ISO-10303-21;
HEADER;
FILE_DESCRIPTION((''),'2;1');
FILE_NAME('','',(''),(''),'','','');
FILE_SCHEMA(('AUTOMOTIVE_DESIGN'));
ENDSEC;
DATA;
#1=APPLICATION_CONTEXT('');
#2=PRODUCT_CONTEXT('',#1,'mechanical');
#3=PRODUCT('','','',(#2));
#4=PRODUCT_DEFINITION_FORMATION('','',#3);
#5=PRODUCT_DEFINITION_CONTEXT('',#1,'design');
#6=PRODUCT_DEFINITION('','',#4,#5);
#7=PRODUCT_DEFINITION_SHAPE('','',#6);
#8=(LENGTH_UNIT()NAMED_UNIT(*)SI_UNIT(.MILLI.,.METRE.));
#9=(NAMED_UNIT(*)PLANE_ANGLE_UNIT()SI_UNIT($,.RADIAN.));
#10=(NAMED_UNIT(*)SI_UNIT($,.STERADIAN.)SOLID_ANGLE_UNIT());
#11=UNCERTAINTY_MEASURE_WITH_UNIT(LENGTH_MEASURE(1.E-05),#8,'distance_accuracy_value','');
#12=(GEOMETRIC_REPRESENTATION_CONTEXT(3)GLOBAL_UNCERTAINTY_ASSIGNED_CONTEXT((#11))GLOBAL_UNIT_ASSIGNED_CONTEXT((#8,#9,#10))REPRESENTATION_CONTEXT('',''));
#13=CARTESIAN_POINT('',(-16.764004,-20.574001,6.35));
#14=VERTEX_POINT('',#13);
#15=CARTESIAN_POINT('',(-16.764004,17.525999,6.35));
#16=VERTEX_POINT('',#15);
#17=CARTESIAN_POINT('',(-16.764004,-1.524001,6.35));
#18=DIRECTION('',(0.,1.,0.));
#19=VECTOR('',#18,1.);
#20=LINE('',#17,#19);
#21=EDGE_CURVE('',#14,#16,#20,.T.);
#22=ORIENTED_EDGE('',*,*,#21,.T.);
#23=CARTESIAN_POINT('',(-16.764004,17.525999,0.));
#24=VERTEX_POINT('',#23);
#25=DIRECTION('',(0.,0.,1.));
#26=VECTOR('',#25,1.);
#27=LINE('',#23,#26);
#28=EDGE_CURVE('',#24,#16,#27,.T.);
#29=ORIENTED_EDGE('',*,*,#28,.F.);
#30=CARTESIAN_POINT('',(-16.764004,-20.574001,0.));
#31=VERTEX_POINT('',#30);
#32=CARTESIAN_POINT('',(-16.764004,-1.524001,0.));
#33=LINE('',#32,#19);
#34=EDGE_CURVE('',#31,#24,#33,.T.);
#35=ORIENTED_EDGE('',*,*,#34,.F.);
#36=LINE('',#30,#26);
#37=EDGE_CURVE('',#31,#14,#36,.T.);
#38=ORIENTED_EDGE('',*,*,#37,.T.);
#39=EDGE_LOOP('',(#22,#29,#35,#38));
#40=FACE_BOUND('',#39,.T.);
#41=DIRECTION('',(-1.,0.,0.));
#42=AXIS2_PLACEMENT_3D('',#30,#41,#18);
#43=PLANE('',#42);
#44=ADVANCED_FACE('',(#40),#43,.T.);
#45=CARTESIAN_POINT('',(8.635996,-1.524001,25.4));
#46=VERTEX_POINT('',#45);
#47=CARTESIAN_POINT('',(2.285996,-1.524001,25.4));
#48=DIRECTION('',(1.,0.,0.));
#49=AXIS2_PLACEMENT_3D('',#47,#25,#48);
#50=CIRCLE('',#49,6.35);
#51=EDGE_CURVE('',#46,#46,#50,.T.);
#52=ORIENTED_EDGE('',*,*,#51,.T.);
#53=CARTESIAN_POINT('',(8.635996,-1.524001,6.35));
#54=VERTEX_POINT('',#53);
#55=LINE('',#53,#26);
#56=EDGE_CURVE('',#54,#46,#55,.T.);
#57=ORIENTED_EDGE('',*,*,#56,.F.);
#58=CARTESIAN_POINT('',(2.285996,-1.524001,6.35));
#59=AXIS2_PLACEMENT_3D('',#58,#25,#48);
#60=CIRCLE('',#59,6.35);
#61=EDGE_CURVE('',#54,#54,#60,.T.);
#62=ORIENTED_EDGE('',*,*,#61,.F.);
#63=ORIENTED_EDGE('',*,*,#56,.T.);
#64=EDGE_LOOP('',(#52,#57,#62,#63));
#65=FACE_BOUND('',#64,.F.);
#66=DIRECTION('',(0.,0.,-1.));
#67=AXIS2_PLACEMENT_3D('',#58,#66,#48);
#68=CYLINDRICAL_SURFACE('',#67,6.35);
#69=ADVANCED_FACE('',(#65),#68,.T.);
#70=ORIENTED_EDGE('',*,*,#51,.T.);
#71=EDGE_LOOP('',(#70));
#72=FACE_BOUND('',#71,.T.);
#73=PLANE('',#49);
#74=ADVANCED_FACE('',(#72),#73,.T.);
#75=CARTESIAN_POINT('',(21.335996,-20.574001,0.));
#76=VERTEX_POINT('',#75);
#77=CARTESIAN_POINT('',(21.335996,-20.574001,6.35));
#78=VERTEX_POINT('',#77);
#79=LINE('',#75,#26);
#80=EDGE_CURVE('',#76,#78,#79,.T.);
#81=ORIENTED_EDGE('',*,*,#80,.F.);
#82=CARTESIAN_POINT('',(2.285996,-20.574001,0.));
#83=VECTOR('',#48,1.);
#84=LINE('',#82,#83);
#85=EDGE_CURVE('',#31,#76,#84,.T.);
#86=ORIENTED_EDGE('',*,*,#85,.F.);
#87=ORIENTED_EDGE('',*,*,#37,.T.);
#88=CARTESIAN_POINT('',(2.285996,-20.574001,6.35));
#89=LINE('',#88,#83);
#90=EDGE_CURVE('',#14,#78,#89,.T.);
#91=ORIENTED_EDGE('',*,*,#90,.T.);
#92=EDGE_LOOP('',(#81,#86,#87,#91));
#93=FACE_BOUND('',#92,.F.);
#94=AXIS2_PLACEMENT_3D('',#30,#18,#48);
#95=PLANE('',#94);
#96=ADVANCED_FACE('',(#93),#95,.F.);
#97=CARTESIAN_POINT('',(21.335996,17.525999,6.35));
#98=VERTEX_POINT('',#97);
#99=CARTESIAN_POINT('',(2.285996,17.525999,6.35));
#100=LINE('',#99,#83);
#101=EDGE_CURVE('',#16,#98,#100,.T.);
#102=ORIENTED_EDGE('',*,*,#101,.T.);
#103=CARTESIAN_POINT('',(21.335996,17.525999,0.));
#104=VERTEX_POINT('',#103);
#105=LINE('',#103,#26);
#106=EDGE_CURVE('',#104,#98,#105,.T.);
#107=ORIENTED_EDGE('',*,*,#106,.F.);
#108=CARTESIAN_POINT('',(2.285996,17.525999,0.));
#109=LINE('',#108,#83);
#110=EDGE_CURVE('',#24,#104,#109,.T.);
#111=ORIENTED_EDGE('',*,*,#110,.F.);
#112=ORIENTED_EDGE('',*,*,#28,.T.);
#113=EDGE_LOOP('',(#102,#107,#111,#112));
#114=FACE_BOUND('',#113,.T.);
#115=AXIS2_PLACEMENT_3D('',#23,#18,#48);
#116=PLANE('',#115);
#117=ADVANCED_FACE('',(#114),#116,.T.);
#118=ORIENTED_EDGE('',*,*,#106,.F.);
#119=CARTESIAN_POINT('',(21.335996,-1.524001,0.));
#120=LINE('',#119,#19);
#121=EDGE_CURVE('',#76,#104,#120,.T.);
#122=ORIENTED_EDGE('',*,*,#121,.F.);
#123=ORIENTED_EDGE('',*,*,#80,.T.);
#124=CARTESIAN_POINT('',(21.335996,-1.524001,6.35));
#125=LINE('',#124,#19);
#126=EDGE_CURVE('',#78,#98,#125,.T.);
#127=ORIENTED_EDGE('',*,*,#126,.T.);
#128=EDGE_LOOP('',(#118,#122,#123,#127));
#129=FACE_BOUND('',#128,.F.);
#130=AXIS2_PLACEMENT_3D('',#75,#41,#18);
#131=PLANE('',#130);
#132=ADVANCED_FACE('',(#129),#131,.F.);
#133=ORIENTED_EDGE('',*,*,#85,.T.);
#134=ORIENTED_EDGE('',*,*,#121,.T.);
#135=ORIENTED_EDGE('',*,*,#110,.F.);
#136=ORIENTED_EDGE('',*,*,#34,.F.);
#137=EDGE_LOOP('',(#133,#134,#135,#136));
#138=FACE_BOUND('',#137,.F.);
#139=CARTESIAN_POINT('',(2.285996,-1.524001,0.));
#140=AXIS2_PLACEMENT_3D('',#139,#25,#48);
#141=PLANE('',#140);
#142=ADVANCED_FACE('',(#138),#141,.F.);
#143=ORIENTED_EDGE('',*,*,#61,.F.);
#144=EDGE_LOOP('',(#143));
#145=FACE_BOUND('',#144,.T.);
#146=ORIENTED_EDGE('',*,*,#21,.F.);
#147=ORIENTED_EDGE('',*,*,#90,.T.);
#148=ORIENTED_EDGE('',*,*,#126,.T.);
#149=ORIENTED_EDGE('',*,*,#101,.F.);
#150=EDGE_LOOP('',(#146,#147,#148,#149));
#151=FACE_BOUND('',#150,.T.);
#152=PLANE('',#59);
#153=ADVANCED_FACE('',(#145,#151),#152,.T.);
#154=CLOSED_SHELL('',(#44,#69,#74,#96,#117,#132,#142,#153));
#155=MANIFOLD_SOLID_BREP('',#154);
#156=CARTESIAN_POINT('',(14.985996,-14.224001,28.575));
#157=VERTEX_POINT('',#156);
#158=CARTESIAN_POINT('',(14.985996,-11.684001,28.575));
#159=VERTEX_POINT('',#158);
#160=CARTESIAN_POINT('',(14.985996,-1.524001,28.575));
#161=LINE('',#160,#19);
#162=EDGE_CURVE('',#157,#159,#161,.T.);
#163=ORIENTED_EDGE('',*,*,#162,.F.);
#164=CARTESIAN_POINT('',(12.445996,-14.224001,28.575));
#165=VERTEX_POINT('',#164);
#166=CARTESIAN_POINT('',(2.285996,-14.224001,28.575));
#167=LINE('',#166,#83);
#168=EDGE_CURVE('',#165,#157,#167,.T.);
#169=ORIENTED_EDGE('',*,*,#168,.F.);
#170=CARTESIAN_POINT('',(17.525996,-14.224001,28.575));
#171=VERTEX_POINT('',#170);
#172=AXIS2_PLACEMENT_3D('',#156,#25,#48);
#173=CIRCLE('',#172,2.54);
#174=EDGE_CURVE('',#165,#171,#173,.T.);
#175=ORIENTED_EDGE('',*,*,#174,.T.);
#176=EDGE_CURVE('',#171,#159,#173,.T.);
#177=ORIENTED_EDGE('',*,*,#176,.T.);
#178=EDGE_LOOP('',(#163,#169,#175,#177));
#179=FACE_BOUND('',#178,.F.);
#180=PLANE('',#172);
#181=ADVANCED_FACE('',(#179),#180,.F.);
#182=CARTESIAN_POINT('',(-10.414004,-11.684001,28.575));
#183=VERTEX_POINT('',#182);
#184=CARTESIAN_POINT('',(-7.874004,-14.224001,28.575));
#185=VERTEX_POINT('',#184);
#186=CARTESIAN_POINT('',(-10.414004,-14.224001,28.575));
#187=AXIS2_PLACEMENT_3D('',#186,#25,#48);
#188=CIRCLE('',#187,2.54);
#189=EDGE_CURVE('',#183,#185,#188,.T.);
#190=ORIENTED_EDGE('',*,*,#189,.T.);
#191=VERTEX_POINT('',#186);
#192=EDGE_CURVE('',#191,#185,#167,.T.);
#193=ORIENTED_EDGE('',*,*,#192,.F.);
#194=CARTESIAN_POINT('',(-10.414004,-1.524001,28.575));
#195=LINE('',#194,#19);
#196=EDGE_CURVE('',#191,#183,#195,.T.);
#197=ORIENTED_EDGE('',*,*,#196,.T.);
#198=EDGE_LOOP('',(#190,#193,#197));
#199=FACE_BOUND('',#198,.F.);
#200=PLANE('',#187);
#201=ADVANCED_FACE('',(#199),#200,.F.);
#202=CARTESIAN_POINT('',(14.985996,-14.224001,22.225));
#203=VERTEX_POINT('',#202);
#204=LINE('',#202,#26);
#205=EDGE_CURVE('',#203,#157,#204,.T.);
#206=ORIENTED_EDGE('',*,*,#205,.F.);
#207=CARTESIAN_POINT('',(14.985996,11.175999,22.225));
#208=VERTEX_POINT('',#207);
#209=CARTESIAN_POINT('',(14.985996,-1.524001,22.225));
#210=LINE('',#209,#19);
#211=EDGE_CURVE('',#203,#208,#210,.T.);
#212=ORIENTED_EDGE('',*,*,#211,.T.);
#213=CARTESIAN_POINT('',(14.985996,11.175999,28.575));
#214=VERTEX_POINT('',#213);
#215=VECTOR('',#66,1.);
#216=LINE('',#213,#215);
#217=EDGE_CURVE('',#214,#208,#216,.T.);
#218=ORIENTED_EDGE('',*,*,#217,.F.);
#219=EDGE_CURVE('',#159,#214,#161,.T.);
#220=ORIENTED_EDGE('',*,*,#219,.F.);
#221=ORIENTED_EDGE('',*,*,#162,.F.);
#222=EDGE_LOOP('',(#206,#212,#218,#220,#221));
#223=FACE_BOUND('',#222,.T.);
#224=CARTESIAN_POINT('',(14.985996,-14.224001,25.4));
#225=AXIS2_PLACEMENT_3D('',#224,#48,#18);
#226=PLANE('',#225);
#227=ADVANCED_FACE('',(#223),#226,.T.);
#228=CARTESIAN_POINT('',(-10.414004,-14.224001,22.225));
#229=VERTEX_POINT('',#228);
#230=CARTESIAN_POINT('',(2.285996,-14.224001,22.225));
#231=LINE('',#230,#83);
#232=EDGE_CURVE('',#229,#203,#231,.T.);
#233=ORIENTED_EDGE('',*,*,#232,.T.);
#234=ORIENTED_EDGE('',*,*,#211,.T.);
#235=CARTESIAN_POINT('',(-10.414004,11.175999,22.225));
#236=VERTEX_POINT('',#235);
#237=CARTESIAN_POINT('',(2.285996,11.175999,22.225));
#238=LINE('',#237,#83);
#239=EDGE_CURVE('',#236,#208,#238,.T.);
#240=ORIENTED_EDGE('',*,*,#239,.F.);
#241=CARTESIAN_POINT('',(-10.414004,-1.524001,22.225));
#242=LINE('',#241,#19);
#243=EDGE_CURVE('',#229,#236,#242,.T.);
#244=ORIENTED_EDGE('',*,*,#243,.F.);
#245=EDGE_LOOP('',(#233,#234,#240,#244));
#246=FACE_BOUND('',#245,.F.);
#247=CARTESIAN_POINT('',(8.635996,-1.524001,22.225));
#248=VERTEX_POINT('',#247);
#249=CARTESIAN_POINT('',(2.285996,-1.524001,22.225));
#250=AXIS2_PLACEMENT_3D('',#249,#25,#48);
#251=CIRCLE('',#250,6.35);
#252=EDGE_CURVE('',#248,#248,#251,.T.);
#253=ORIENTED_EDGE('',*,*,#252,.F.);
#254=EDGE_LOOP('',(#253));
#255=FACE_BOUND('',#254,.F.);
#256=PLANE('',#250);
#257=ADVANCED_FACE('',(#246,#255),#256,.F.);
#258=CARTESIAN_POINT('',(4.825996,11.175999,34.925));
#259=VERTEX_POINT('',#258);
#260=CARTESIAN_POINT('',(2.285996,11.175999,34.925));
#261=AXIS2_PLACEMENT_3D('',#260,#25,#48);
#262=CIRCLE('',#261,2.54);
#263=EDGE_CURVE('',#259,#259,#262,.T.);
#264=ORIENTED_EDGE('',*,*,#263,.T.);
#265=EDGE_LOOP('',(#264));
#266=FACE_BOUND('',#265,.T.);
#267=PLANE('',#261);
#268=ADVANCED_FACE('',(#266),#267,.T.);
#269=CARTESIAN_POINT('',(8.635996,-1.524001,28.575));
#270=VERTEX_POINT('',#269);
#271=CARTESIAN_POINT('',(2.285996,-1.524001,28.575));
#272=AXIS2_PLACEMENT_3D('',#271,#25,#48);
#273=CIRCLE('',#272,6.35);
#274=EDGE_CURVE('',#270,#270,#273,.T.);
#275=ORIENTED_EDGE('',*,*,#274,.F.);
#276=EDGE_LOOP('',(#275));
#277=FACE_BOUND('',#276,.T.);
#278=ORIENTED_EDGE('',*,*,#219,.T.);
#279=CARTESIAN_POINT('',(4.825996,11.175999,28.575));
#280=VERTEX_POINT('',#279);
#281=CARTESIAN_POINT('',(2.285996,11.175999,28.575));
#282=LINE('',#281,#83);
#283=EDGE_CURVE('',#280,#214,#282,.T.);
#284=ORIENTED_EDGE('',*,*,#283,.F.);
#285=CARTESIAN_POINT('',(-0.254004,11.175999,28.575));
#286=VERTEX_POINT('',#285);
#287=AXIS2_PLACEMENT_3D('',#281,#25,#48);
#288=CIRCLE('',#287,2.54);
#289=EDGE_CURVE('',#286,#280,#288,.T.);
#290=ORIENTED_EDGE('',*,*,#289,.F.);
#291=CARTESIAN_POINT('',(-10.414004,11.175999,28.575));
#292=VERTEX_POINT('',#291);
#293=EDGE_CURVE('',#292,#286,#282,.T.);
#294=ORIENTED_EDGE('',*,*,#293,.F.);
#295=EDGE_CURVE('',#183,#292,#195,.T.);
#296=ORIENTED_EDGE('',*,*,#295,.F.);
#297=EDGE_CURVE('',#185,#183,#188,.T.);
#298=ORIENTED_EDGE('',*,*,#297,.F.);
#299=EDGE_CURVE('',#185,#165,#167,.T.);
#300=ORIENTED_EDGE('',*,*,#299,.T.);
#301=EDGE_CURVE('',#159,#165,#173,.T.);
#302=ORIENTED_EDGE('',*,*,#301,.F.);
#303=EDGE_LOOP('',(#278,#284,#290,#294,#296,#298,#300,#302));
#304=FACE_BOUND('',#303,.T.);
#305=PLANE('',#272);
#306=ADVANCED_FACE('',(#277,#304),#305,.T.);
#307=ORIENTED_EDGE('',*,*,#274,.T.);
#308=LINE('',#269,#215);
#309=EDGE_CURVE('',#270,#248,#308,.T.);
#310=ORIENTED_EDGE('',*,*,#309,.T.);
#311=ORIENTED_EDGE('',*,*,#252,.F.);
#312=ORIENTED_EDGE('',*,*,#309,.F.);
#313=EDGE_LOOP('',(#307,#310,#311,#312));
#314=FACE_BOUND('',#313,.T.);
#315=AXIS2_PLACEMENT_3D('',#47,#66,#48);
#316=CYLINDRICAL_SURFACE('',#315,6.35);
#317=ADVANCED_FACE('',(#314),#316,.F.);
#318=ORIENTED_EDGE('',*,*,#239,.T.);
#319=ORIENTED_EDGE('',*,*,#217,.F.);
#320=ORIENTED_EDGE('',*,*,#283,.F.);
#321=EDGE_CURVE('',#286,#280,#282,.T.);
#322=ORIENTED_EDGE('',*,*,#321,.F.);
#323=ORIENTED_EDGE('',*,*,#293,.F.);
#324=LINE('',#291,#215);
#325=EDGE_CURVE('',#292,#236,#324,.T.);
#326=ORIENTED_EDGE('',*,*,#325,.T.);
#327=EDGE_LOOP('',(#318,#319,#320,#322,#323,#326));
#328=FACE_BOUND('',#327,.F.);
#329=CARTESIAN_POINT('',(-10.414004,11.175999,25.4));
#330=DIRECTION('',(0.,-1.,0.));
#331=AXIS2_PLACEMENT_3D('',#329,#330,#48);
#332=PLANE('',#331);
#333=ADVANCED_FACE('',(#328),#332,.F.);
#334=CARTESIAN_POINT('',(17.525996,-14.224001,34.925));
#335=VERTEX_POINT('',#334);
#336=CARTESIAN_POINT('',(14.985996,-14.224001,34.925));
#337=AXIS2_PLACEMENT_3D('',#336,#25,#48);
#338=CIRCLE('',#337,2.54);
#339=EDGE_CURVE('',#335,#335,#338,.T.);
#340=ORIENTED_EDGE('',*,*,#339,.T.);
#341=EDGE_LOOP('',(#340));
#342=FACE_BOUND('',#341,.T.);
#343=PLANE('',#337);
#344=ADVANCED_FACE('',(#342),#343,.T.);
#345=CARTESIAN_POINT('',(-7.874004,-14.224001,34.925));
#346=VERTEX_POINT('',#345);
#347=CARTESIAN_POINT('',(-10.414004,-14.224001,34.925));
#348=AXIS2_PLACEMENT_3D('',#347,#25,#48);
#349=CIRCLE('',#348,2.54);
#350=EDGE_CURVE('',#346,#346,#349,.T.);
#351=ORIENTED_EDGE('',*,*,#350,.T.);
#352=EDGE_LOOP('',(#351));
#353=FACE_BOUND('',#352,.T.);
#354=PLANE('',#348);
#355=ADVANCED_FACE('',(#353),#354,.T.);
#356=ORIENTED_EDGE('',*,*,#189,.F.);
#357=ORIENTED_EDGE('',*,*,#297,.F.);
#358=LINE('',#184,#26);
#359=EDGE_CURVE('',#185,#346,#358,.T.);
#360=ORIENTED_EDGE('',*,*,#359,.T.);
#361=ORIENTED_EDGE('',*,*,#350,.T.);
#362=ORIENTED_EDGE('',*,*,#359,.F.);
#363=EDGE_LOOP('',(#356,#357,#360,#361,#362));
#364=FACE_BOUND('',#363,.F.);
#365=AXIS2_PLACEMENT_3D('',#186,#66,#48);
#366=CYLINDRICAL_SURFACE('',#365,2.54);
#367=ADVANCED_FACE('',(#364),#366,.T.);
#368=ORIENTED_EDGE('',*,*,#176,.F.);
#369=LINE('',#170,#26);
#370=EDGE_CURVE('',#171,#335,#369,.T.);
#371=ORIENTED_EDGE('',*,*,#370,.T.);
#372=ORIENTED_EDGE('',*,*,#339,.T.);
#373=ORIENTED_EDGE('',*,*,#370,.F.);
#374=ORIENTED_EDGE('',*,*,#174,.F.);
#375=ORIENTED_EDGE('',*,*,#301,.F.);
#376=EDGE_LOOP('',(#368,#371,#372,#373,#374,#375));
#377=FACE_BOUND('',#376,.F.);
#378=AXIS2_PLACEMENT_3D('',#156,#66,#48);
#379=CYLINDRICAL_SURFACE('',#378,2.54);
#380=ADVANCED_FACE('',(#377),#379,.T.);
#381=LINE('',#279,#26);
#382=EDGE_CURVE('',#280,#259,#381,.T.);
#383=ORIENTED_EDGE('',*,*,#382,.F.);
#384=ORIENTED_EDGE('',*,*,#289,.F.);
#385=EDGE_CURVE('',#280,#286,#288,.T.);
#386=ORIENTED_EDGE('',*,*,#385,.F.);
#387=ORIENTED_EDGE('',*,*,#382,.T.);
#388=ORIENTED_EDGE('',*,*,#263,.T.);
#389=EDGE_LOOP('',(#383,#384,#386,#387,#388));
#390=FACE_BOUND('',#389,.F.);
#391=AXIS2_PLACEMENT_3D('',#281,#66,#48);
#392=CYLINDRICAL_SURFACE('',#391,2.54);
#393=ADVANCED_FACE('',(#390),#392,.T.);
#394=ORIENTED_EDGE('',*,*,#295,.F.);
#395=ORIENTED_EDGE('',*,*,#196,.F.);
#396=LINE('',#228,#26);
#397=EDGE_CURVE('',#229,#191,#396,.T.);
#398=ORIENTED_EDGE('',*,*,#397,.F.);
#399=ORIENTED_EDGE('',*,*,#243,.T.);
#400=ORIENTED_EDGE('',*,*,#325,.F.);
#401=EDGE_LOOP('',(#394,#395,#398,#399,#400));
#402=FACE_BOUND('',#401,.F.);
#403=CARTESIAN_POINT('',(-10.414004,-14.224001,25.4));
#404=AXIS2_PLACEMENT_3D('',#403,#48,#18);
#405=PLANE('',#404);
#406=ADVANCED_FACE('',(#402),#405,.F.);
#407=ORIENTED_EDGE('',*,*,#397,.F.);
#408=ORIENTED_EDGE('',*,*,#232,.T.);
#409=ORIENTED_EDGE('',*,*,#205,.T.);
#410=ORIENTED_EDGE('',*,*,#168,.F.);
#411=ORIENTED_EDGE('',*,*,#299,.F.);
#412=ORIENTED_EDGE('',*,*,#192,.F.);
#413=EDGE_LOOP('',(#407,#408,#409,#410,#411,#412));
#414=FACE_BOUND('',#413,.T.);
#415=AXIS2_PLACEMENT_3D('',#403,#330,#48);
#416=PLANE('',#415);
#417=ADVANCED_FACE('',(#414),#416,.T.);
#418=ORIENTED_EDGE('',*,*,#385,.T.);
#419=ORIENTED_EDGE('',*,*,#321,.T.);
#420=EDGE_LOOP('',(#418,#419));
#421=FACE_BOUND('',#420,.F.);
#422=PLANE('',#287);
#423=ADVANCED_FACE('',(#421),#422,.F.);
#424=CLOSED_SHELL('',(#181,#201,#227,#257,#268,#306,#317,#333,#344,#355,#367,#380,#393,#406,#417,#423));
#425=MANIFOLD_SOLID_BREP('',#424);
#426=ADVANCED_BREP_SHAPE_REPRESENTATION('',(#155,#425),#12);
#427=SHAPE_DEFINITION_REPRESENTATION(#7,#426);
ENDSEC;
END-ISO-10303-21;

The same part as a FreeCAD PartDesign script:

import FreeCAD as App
import Part
import Sketcher

V = App.Vector
Q = App.Units.Quantity

doc = App.newDocument("Part")
params = doc.addObject("Spreadsheet::Sheet", "Params")
for row, (alias, value) in enumerate([
    ("sketch1_width", "1.5 in"),
    ("pad1_length", "0.25 in"),
    ("sketch2_diameter", "0.5 in"),
    ("pad2_length", "0.75 in"),
    ("sketch3_diameter", "0.5 in"),
    ("sketch3_width", "1 in"),
    ("pad3_length", "0.25 in"),
    ("sketch4_diameter", "0.2 in"),
    ("pad4_length", "0.25 in"),
], start=1):
    params.set(f"A{row}", alias)
    params.set(f"B{row}", "=" + value)
    params.setAlias(f"B{row}", alias)

body = doc.addObject("PartDesign::Body", "Body")

# Sketch on XY plane
sketch1 = body.newObject("Sketcher::SketchObject", "Sketch")
sketch1.AttachmentSupport = (doc.getObject("XY_Plane"), [""])
sketch1.MapMode = "FlatFace"
sketch1.addGeometry(Part.LineSegment(V(-17, 18, 0), V(-17, -21, 0)), False)
sketch1.addGeometry(Part.LineSegment(V(-17, -21, 0), V(21, -21, 0)), False)
sketch1.addGeometry(Part.LineSegment(V(21, -21, 0), V(21, 18, 0)), False)
sketch1.addGeometry(Part.LineSegment(V(21, 18, 0), V(-17, 18, 0)), False)
sketch1.addConstraint(Sketcher.Constraint("Coincident", 0, 2, 1, 1))
sketch1.addConstraint(Sketcher.Constraint("Coincident", 1, 2, 2, 1))
sketch1.addConstraint(Sketcher.Constraint("Coincident", 2, 2, 3, 1))
sketch1.addConstraint(Sketcher.Constraint("Coincident", 3, 2, 0, 1))
sketch1.addConstraint(Sketcher.Constraint("Vertical", 0))
sketch1.addConstraint(Sketcher.Constraint("Horizontal", 1))
sketch1.addConstraint(Sketcher.Constraint("Vertical", 2))
sketch1.addConstraint(Sketcher.Constraint("Horizontal", 3))
sketch1.addConstraint(Sketcher.Constraint("Equal", 3, 0))
sketch1.addConstraint(Sketcher.Constraint("DistanceX", 1, 1, 1, 2, Q("1.5 in")))
sketch1.addConstraint(Sketcher.Constraint("DistanceX", 0, 2, -1, 1, Q("0.6600002 in")))
sketch1.addConstraint(Sketcher.Constraint("DistanceY", 0, 2, -1, 1, Q("0.81 in")))
sketch1.setExpression("Constraints[9]", "Params.sketch1_width")
pad1 = body.newObject("PartDesign::Pad", "Pad")
pad1.Profile = sketch1
pad1.setExpression("Length", "Params.pad1_length")

# Sketch on XY plane
sketch2 = body.newObject("Sketcher::SketchObject", "Sketch001")
sketch2.AttachmentSupport = (doc.getObject("XY_Plane"), [""])
sketch2.MapMode = "FlatFace"
sketch2.AttachmentOffset = App.Placement(V(0, 0, 0.25 * 25.4), App.Rotation())
sketch2.addGeometry(Part.Circle(V(2, -2, 0), V(0, 0, 1), 6), False)
sketch2.addConstraint(Sketcher.Constraint("Diameter", 0, Q("0.5 in")))
sketch2.addConstraint(Sketcher.Constraint("DistanceX", -1, 1, 0, 3, Q("0.0899998 in")))
sketch2.addConstraint(Sketcher.Constraint("DistanceY", 0, 3, -1, 1, Q("0.06 in")))
sketch2.setExpression("Constraints[0]", "Params.sketch2_diameter")
pad2 = body.newObject("PartDesign::Pad", "Pad001")
pad2.Profile = sketch2
pad2.setExpression("Length", "Params.pad2_length")
body2 = doc.addObject("PartDesign::Body", "Body001")

# Sketch on XY plane
sketch3 = body2.newObject("Sketcher::SketchObject", "Sketch002")
sketch3.AttachmentSupport = (doc.getObject("XY_Plane001"), [""])
sketch3.MapMode = "FlatFace"
sketch3.AttachmentOffset = App.Placement(V(0, 0, 1 * 25.4), App.Rotation())
sketch3.addGeometry(Part.LineSegment(V(-10, 11, 0), V(-10, -14, 0)), False)
sketch3.addGeometry(Part.LineSegment(V(-10, -14, 0), V(15, -14, 0)), False)
sketch3.addGeometry(Part.LineSegment(V(15, -14, 0), V(15, 11, 0)), False)
sketch3.addGeometry(Part.LineSegment(V(15, 11, 0), V(-10, 11, 0)), False)
sketch3.addGeometry(Part.Circle(V(2, -2, 0), V(0, 0, 1), 6), False)
sketch3.addConstraint(Sketcher.Constraint("Coincident", 0, 2, 1, 1))
sketch3.addConstraint(Sketcher.Constraint("Coincident", 1, 2, 2, 1))
sketch3.addConstraint(Sketcher.Constraint("Coincident", 2, 2, 3, 1))
sketch3.addConstraint(Sketcher.Constraint("Coincident", 3, 2, 0, 1))
sketch3.addConstraint(Sketcher.Constraint("Vertical", 0))
sketch3.addConstraint(Sketcher.Constraint("Horizontal", 1))
sketch3.addConstraint(Sketcher.Constraint("Vertical", 2))
sketch3.addConstraint(Sketcher.Constraint("Horizontal", 3))
sketch3.addConstraint(Sketcher.Constraint("Equal", 3, 0))
sketch3.addConstraint(Sketcher.Constraint("Diameter", 4, Q("0.5 in")))
sketch3.addConstraint(Sketcher.Constraint("DistanceX", 1, 1, 1, 2, Q("1 in")))
sketch3.addConstraint(Sketcher.Constraint("DistanceX", 0, 2, 4, 3, Q("0.5 in")))
sketch3.addConstraint(Sketcher.Constraint("DistanceY", 0, 2, 4, 3, Q("0.5 in")))
sketch3.addConstraint(Sketcher.Constraint("DistanceX", -1, 1, 4, 3, Q("0.0899998 in")))
sketch3.addConstraint(Sketcher.Constraint("DistanceY", 4, 3, -1, 1, Q("0.06 in")))
sketch3.setExpression("Constraints[9]", "Params.sketch3_diameter")
sketch3.setExpression("Constraints[10]", "Params.sketch3_width")
pad3 = body2.newObject("PartDesign::Pad", "Pad002")
pad3.Profile = sketch3
pad3.setExpression("Length", "Params.pad3_length")
pad3.Midplane = True

# Sketch on XY plane
sketch4 = body2.newObject("Sketcher::SketchObject", "Sketch003")
sketch4.AttachmentSupport = (doc.getObject("XY_Plane001"), [""])
sketch4.MapMode = "FlatFace"
sketch4.AttachmentOffset = App.Placement(V(0, 0, 1.125 * 25.4), App.Rotation())
sketch4.addGeometry(Part.Circle(V(-10.4, -14.2, 0), V(0, 0, 1), 2.5), False)
sketch4.addGeometry(Part.Circle(V(15, -14.2, 0), V(0, 0, 1), 2.5), False)
sketch4.addGeometry(Part.Circle(V(2.3, 11.2, 0), V(0, 0, 1), 2.5), False)
sketch4.addConstraint(Sketcher.Constraint("Equal", 0, 1))
sketch4.addConstraint(Sketcher.Constraint("Equal", 1, 2))
sketch4.addConstraint(Sketcher.Constraint("Horizontal", 0, 3, 1, 3))
sketch4.addConstraint(Sketcher.Constraint("Diameter", 0, Q("0.2 in")))
sketch4.addConstraint(Sketcher.Constraint("DistanceX", 0, 3, 1, 3, Q("1 in")))
sketch4.addConstraint(Sketcher.Constraint("DistanceY", 0, 3, 2, 3, Q("1 in")))
sketch4.addConstraint(Sketcher.Constraint("DistanceX", 0, 3, 2, 3, Q("0.5 in")))
sketch4.addConstraint(Sketcher.Constraint("DistanceX", 0, 3, -1, 1, Q("0.4100002 in")))
sketch4.addConstraint(Sketcher.Constraint("DistanceY", 0, 3, -1, 1, Q("0.56 in")))
sketch4.setExpression("Constraints[3]", "Params.sketch4_diameter")
pad4 = body2.newObject("PartDesign::Pad", "Pad003")
pad4.Profile = sketch4
pad4.setExpression("Length", "Params.pad4_length")

doc.recompute()
